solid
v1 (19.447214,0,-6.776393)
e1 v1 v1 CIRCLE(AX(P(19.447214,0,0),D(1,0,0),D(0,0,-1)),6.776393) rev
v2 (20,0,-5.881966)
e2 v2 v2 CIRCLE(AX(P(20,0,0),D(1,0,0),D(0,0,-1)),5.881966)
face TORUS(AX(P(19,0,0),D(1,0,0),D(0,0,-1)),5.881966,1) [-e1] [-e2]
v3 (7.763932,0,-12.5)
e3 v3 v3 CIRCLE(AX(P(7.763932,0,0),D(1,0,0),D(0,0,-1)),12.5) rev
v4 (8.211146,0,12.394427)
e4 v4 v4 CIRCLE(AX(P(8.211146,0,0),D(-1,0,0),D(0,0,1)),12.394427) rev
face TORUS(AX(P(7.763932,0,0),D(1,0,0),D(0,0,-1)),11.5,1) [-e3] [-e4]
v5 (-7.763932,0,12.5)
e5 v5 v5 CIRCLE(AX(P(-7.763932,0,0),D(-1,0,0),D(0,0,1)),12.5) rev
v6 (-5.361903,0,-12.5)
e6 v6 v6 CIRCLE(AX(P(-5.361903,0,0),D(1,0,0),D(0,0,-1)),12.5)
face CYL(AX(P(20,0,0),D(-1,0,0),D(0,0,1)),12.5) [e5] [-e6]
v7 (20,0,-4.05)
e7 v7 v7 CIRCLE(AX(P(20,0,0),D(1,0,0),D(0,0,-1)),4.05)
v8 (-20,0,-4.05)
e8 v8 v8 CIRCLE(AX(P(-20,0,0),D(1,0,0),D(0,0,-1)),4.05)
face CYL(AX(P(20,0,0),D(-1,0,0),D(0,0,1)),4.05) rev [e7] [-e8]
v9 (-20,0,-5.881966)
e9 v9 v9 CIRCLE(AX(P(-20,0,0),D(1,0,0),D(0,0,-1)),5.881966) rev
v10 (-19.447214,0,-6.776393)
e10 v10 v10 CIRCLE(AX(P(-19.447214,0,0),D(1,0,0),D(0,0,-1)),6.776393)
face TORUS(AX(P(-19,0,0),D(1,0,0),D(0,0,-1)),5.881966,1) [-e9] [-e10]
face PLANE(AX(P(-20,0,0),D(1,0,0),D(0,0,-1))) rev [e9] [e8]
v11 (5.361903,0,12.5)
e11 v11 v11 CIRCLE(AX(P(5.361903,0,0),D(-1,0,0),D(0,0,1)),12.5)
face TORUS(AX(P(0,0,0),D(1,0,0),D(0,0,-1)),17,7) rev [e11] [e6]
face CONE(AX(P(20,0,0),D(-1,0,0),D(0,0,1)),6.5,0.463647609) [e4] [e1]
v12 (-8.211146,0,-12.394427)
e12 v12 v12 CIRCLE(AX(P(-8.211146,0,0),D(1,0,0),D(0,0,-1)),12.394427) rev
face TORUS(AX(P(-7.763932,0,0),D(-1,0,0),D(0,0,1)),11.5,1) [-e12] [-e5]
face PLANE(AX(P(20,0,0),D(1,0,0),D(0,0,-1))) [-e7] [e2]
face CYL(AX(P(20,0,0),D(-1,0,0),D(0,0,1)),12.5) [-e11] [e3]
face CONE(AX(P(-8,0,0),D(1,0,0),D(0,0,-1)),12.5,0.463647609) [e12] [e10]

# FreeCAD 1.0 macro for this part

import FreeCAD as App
import Part
import Sketcher


def edges_at(feature, points):
    """Names of the edges that pass closest to the given points."""
    edges = feature.Shape.Edges
    near = lambda p: min(range(len(edges)), key=lambda i: edges[i].distToShape(Part.Vertex(*p))[0])
    return sorted({f"Edge{near(p) + 1}" for p in points})

doc = App.newDocument("Part")
body = doc.addObject("PartDesign::Body", "Body")

sketch1 = doc.addObject("Sketcher::SketchObject", "Sketch")
body.addObject(sketch1)
sketch1.AttachmentSupport = (doc.YZ_Plane, [""])
sketch1.MapMode = "FlatFace"
sketch1.addGeometry([
    Part.Circle(App.Vector(0, 0, 0), App.Vector(0, 0, 1), 12.5),
    Part.Circle(App.Vector(0, 0, 0), App.Vector(0, 0, 1), 4.05),
], False)
sketch1.addConstraint([
    Sketcher.Constraint("Coincident", 0, 3, -1, 1),
    Sketcher.Constraint("Coincident", 1, 3, -1, 1),
    Sketcher.Constraint("Diameter", 0, 25.0),
    Sketcher.Constraint("Diameter", 1, 8.1),
])
pad1 = doc.addObject("PartDesign::Pad", "Pad")
body.addObject(pad1)
pad1.Profile = sketch1
pad1.Length = 40
pad1.Midplane = True

sketch2 = doc.addObject("Sketcher::SketchObject", "Sketch001")
body.addObject(sketch2)
sketch2.AttachmentSupport = (doc.XZ_Plane, [""])
sketch2.MapMode = "FlatFace"
sketch2.addGeometry(Part.Circle(App.Vector(0, 17, 0), App.Vector(0, 0, 1), 7), False)
sketch2.addConstraint([
    Sketcher.Constraint("PointOnObject", 0, 3, -2),
    Sketcher.Constraint("Diameter", 0, 14.0),
    Sketcher.Constraint("DistanceY", -1, 1, 0, 3, 17.0),
])
groove = doc.addObject("PartDesign::Groove", "Groove")
body.addObject(groove)
groove.Profile = sketch2
groove.ReferenceAxis = (sketch2, ["H_Axis"])
groove.Angle = 360
doc.recompute()

chamfer = doc.addObject("PartDesign::Chamfer", "Chamfer")
body.addObject(chamfer)
chamfer.Base = (groove, edges_at(groove, [(-20, 0, 12.5)]))
chamfer.ChamferType = "Two distances"
chamfer.Size = 6
chamfer.Size2 = 12
chamfer.FlipDirection = True
doc.recompute()

chamfer2 = doc.addObject("PartDesign::Chamfer", "Chamfer001")
body.addObject(chamfer2)
chamfer2.Base = (chamfer, edges_at(chamfer, [(20, 0, 12.5)]))
chamfer2.ChamferType = "Two distances"
chamfer2.Size = 12
chamfer2.Size2 = 6
doc.recompute()

fillet = doc.addObject("PartDesign::Fillet", "Fillet")
body.addObject(fillet)
fillet.Base = (chamfer2, edges_at(chamfer2, [
    (-8, 0, 12.5),
    (-20, 0, 6.5),
    (20, 0, 6.5),
    (8, 0, 12.5),
]))
fillet.Radius = 1

doc.recompute()
